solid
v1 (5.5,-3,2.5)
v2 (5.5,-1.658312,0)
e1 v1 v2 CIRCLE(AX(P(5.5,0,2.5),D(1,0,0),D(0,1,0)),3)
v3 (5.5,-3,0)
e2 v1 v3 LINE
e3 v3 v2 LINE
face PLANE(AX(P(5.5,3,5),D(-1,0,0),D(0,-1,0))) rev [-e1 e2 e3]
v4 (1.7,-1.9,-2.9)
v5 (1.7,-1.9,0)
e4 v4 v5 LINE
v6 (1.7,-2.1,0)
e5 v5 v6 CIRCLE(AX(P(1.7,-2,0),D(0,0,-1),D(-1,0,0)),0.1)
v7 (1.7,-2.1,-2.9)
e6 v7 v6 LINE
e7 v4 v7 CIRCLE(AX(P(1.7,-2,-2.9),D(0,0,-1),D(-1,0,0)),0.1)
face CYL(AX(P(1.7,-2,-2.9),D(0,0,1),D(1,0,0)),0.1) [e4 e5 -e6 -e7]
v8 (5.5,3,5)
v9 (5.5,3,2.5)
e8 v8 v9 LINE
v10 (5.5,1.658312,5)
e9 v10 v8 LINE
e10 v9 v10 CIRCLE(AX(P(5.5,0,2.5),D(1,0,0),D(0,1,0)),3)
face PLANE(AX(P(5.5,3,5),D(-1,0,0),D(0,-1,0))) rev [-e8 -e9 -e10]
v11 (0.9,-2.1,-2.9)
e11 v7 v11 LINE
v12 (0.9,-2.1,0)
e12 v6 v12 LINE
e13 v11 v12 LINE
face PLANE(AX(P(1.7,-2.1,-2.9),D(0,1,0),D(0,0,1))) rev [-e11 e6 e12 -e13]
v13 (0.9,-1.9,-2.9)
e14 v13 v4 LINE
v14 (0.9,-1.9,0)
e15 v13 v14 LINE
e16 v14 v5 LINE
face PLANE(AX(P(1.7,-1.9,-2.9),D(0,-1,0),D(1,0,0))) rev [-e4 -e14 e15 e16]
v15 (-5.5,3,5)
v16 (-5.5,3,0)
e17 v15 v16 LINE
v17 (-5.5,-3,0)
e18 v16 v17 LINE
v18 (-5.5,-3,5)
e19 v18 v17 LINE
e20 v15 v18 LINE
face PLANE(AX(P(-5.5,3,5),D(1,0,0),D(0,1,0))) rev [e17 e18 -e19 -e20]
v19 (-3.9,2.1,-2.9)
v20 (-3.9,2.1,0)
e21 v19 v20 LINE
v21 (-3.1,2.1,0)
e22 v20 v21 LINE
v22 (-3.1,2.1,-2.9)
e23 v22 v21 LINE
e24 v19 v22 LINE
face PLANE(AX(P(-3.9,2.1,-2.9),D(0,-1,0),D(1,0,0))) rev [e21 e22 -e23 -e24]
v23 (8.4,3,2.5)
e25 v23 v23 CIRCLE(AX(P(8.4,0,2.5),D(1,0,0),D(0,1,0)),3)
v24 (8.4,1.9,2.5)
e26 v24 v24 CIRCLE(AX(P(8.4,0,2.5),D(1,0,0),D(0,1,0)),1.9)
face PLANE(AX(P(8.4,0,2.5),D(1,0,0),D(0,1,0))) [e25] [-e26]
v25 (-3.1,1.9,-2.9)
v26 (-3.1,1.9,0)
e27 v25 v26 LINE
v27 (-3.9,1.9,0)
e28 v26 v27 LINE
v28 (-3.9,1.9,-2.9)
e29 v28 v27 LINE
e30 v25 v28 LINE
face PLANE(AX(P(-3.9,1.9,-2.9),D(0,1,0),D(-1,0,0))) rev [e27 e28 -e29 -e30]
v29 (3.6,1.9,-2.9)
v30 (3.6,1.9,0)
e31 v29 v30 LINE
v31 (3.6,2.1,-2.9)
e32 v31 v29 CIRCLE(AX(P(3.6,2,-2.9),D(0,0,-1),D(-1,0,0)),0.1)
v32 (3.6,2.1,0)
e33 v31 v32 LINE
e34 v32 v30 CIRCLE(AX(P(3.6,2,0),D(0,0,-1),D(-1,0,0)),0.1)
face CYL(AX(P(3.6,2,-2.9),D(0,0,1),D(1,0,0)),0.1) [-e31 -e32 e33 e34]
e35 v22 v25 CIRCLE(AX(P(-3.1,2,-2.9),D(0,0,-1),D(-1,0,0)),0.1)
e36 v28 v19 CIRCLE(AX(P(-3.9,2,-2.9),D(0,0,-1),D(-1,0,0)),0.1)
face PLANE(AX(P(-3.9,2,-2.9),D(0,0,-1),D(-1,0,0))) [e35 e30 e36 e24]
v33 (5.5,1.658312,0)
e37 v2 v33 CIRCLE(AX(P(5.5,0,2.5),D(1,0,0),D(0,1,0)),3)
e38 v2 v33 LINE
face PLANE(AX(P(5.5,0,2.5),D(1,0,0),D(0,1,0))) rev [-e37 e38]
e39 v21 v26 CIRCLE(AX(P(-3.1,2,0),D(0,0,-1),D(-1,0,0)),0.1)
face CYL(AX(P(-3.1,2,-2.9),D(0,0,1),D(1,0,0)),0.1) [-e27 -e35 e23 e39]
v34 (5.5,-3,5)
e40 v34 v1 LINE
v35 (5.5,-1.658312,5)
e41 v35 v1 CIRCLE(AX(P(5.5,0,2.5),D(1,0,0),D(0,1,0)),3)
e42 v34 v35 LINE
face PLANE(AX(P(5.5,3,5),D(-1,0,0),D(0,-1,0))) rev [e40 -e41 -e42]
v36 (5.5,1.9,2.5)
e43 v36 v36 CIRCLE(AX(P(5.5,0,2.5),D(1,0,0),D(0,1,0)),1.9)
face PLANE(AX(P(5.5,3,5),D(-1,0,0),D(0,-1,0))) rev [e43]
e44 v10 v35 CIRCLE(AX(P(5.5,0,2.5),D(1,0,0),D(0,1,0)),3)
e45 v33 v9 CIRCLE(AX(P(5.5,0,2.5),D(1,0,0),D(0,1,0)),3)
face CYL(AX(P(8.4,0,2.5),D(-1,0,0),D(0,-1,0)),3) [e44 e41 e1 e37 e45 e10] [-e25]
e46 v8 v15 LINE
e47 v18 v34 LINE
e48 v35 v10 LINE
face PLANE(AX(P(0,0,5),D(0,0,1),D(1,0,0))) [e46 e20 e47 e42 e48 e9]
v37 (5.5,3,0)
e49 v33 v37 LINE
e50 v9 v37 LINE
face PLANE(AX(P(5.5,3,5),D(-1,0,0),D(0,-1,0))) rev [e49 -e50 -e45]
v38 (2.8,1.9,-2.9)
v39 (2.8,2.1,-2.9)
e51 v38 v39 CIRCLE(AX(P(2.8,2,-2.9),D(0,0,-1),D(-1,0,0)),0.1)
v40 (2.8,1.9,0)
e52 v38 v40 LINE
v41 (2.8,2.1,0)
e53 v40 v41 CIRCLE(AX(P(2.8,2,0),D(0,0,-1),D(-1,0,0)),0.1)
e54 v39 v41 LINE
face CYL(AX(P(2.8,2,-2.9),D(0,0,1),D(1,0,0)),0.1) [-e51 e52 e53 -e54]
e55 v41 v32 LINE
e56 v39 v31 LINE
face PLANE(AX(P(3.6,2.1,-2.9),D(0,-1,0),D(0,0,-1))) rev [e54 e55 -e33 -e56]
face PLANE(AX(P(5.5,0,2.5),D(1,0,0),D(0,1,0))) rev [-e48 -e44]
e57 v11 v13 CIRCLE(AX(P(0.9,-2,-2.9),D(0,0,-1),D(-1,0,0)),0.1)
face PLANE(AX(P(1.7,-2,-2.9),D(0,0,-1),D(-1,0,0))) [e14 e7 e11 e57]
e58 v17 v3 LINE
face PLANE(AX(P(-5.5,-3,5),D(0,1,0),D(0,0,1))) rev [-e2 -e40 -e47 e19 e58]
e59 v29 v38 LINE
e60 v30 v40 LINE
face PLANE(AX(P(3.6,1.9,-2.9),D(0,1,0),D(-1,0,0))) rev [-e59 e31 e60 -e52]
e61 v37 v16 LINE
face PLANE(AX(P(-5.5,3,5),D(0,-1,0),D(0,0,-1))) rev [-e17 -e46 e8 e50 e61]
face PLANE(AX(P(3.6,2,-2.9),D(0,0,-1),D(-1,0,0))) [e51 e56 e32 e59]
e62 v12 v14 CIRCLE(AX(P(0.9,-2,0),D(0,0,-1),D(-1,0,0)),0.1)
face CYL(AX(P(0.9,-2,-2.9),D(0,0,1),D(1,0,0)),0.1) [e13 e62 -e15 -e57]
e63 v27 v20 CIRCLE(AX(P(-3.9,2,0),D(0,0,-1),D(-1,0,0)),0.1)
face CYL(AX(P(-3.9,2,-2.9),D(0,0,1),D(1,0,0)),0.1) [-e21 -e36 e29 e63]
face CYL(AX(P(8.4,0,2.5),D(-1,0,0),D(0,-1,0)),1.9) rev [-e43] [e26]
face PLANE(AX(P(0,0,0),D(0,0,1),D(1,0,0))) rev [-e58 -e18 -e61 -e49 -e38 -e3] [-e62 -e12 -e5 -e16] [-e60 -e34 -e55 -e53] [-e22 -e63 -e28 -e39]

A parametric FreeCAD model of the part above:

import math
import FreeCAD as App
import Part
import Sketcher
Q = App.Units.Quantity

doc = App.newDocument("Part")
body = doc.addObject("PartDesign::Body", "Body")

# Sketch on XY plane
sketch1 = body.newObject("Sketcher::SketchObject", "Sketch")
sketch1.AttachmentSupport = (doc.getObject("XY_Plane"), [""])
sketch1.MapMode = "FlatFace"
sketch1.addGeometry([
    Part.LineSegment(App.Vector(-6, 3, 0), App.Vector(-6, -3, 0)),
    Part.LineSegment(App.Vector(-6, -3, 0), App.Vector(6, -3, 0)),
    Part.LineSegment(App.Vector(6, -3, 0), App.Vector(6, 3, 0)),
    Part.LineSegment(App.Vector(6, 3, 0), App.Vector(-6, 3, 0)),
], False)
sketch1.addConstraint([
    Sketcher.Constraint("Coincident", 0, 2, 1, 1),
    Sketcher.Constraint("Coincident", 1, 2, 2, 1),
    Sketcher.Constraint("Coincident", 2, 2, 3, 1),
    Sketcher.Constraint("Coincident", 3, 2, 0, 1),
    Sketcher.Constraint("Vertical", 0),
    Sketcher.Constraint("Horizontal", 1),
    Sketcher.Constraint("Vertical", 2),
    Sketcher.Constraint("Horizontal", 3),
    Sketcher.Constraint("Symmetric", 0, 2, 2, 2, -1, 1),
    Sketcher.Constraint("DistanceX", 1, 1, 1, 2, Q("11 mm")),
    Sketcher.Constraint("DistanceY", 0, 2, 0, 1, Q("6 mm")),
])
pad1 = body.newObject("PartDesign::Pad", "Pad")
pad1.Profile = sketch1
pad1.Length = 5

# Sketch on YZ plane
sketch2 = body.newObject("Sketcher::SketchObject", "Sketch001")
sketch2.AttachmentSupport = (doc.getObject("YZ_Plane"), [""])
sketch2.MapMode = "FlatFace"
sketch2.AttachmentOffset = App.Placement(App.Vector(0, 0, 5.5), App.Rotation())
sketch2.addGeometry([
    Part.Circle(App.Vector(0, 2.5, 0), App.Vector(0, 0, 1), 3),
    Part.Circle(App.Vector(0, 2.5, 0), App.Vector(0, 0, 1), 1.9),
], False)
sketch2.addConstraint([
    Sketcher.Constraint("Coincident", 1, 3, 0, 3),
    Sketcher.Constraint("PointOnObject", 0, 3, -2),
    Sketcher.Constraint("Diameter", 0, Q("6 mm")),
    Sketcher.Constraint("Diameter", 1, Q("3.8 mm")),
    Sketcher.Constraint("DistanceY", -1, 1, 0, 3, Q("2.5 mm")),
])
pad2 = body.newObject("PartDesign::Pad", "Pad001")
pad2.Profile = sketch2
pad2.Length = 2.9

# Sketch on XY plane
sketch3 = body.newObject("Sketcher::SketchObject", "Sketch002")
sketch3.AttachmentSupport = (doc.getObject("XY_Plane"), [""])
sketch3.MapMode = "FlatFace"
sketch3.addGeometry([
    Part.LineSegment(App.Vector(2.8, 2.1, 0), App.Vector(3.6, 2.1, 0)),  # 0
    Part.ArcOfCircle(Part.Circle(App.Vector(3.6, 2, 0), App.Vector(0, 0, 1), 0.1), math.radians(-90), math.radians(90)),  # 1
    Part.LineSegment(App.Vector(3.6, 1.9, 0), App.Vector(2.8, 1.9, 0)),  # 2
    Part.ArcOfCircle(Part.Circle(App.Vector(2.8, 2, 0), App.Vector(0, 0, 1), 0.1), math.radians(90), math.radians(270)),  # 3
    Part.LineSegment(App.Vector(-3.1, 1.9, 0), App.Vector(-3.9, 1.9, 0)),  # 4
    Part.ArcOfCircle(Part.Circle(App.Vector(-3.9, 2, 0), App.Vector(0, 0, 1), 0.1), math.radians(90), math.radians(270)),  # 5
    Part.LineSegment(App.Vector(-3.9, 2.1, 0), App.Vector(-3.1, 2.1, 0)),  # 6
    Part.ArcOfCircle(Part.Circle(App.Vector(-3.1, 2, 0), App.Vector(0, 0, 1), 0.1), math.radians(-90), math.radians(90)),  # 7
    Part.LineSegment(App.Vector(0.9, -1.9, 0), App.Vector(1.7, -1.9, 0)),  # 8
    Part.ArcOfCircle(Part.Circle(App.Vector(1.7, -2, 0), App.Vector(0, 0, 1), 0.1), math.radians(-90), math.radians(90)),  # 9
    Part.LineSegment(App.Vector(1.7, -2.1, 0), App.Vector(0.9, -2.1, 0)),  # 10
    Part.ArcOfCircle(Part.Circle(App.Vector(0.9, -2, 0), App.Vector(0, 0, 1), 0.1), math.radians(90), math.radians(270)),  # 11
], False)
sketch3.addConstraint([
    Sketcher.Constraint("Tangent", 0, 2, 1, 2),
    Sketcher.Constraint("Tangent", 1, 1, 2, 1),
    Sketcher.Constraint("Tangent", 2, 2, 3, 2),
    Sketcher.Constraint("Tangent", 3, 1, 0, 1),
    Sketcher.Constraint("Tangent", 4, 2, 5, 2),
    Sketcher.Constraint("Tangent", 5, 1, 6, 1),
    Sketcher.Constraint("Tangent", 6, 2, 7, 2),
    Sketcher.Constraint("Tangent", 7, 1, 4, 1),
    Sketcher.Constraint("Tangent", 8, 2, 9, 2),
    Sketcher.Constraint("Tangent", 9, 1, 10, 1),
    Sketcher.Constraint("Tangent", 10, 2, 11, 2),
    Sketcher.Constraint("Tangent", 11, 1, 8, 1),
    Sketcher.Constraint("Horizontal", 0),
    Sketcher.Constraint("Horizontal", 2),
    Sketcher.Constraint("Horizontal", 4),
    Sketcher.Constraint("Horizontal", 6),
    Sketcher.Constraint("Horizontal", 8),
    Sketcher.Constraint("Horizontal", 10),
    Sketcher.Constraint("Equal", 3, 5),
    Sketcher.Constraint("Equal", 7, 9),
    Sketcher.Constraint("Horizontal", 3, 3, 5, 3),
    Sketcher.Constraint("Equal", 2, 4),
    Sketcher.Constraint("Equal", 6, 8),
    Sketcher.Constraint("Radius", 1, Q("0.1 mm")),
    Sketcher.Constraint("DistanceX", 0, 1, 0, 2, Q("0.8 mm")),
    Sketcher.Constraint("DistanceY", -1, 1, 1, 3, Q("2 mm")),
    Sketcher.Constraint("DistanceY", 9, 3, -1, 1, Q("2 mm")),
    Sketcher.Constraint("DistanceX", 7, 3, 11, 3, Q("4 mm")),
    Sketcher.Constraint("DistanceX", -1, 1, 1, 3, Q("3.6 mm")),
    Sketcher.Constraint("DistanceX", 5, 3, -1, 1, Q("3.9 mm")),
])
pad3 = body.newObject("PartDesign::Pad", "Pad002")
pad3.Profile = sketch3
pad3.Length = 2.9
pad3.Reversed = True

doc.recompute()
